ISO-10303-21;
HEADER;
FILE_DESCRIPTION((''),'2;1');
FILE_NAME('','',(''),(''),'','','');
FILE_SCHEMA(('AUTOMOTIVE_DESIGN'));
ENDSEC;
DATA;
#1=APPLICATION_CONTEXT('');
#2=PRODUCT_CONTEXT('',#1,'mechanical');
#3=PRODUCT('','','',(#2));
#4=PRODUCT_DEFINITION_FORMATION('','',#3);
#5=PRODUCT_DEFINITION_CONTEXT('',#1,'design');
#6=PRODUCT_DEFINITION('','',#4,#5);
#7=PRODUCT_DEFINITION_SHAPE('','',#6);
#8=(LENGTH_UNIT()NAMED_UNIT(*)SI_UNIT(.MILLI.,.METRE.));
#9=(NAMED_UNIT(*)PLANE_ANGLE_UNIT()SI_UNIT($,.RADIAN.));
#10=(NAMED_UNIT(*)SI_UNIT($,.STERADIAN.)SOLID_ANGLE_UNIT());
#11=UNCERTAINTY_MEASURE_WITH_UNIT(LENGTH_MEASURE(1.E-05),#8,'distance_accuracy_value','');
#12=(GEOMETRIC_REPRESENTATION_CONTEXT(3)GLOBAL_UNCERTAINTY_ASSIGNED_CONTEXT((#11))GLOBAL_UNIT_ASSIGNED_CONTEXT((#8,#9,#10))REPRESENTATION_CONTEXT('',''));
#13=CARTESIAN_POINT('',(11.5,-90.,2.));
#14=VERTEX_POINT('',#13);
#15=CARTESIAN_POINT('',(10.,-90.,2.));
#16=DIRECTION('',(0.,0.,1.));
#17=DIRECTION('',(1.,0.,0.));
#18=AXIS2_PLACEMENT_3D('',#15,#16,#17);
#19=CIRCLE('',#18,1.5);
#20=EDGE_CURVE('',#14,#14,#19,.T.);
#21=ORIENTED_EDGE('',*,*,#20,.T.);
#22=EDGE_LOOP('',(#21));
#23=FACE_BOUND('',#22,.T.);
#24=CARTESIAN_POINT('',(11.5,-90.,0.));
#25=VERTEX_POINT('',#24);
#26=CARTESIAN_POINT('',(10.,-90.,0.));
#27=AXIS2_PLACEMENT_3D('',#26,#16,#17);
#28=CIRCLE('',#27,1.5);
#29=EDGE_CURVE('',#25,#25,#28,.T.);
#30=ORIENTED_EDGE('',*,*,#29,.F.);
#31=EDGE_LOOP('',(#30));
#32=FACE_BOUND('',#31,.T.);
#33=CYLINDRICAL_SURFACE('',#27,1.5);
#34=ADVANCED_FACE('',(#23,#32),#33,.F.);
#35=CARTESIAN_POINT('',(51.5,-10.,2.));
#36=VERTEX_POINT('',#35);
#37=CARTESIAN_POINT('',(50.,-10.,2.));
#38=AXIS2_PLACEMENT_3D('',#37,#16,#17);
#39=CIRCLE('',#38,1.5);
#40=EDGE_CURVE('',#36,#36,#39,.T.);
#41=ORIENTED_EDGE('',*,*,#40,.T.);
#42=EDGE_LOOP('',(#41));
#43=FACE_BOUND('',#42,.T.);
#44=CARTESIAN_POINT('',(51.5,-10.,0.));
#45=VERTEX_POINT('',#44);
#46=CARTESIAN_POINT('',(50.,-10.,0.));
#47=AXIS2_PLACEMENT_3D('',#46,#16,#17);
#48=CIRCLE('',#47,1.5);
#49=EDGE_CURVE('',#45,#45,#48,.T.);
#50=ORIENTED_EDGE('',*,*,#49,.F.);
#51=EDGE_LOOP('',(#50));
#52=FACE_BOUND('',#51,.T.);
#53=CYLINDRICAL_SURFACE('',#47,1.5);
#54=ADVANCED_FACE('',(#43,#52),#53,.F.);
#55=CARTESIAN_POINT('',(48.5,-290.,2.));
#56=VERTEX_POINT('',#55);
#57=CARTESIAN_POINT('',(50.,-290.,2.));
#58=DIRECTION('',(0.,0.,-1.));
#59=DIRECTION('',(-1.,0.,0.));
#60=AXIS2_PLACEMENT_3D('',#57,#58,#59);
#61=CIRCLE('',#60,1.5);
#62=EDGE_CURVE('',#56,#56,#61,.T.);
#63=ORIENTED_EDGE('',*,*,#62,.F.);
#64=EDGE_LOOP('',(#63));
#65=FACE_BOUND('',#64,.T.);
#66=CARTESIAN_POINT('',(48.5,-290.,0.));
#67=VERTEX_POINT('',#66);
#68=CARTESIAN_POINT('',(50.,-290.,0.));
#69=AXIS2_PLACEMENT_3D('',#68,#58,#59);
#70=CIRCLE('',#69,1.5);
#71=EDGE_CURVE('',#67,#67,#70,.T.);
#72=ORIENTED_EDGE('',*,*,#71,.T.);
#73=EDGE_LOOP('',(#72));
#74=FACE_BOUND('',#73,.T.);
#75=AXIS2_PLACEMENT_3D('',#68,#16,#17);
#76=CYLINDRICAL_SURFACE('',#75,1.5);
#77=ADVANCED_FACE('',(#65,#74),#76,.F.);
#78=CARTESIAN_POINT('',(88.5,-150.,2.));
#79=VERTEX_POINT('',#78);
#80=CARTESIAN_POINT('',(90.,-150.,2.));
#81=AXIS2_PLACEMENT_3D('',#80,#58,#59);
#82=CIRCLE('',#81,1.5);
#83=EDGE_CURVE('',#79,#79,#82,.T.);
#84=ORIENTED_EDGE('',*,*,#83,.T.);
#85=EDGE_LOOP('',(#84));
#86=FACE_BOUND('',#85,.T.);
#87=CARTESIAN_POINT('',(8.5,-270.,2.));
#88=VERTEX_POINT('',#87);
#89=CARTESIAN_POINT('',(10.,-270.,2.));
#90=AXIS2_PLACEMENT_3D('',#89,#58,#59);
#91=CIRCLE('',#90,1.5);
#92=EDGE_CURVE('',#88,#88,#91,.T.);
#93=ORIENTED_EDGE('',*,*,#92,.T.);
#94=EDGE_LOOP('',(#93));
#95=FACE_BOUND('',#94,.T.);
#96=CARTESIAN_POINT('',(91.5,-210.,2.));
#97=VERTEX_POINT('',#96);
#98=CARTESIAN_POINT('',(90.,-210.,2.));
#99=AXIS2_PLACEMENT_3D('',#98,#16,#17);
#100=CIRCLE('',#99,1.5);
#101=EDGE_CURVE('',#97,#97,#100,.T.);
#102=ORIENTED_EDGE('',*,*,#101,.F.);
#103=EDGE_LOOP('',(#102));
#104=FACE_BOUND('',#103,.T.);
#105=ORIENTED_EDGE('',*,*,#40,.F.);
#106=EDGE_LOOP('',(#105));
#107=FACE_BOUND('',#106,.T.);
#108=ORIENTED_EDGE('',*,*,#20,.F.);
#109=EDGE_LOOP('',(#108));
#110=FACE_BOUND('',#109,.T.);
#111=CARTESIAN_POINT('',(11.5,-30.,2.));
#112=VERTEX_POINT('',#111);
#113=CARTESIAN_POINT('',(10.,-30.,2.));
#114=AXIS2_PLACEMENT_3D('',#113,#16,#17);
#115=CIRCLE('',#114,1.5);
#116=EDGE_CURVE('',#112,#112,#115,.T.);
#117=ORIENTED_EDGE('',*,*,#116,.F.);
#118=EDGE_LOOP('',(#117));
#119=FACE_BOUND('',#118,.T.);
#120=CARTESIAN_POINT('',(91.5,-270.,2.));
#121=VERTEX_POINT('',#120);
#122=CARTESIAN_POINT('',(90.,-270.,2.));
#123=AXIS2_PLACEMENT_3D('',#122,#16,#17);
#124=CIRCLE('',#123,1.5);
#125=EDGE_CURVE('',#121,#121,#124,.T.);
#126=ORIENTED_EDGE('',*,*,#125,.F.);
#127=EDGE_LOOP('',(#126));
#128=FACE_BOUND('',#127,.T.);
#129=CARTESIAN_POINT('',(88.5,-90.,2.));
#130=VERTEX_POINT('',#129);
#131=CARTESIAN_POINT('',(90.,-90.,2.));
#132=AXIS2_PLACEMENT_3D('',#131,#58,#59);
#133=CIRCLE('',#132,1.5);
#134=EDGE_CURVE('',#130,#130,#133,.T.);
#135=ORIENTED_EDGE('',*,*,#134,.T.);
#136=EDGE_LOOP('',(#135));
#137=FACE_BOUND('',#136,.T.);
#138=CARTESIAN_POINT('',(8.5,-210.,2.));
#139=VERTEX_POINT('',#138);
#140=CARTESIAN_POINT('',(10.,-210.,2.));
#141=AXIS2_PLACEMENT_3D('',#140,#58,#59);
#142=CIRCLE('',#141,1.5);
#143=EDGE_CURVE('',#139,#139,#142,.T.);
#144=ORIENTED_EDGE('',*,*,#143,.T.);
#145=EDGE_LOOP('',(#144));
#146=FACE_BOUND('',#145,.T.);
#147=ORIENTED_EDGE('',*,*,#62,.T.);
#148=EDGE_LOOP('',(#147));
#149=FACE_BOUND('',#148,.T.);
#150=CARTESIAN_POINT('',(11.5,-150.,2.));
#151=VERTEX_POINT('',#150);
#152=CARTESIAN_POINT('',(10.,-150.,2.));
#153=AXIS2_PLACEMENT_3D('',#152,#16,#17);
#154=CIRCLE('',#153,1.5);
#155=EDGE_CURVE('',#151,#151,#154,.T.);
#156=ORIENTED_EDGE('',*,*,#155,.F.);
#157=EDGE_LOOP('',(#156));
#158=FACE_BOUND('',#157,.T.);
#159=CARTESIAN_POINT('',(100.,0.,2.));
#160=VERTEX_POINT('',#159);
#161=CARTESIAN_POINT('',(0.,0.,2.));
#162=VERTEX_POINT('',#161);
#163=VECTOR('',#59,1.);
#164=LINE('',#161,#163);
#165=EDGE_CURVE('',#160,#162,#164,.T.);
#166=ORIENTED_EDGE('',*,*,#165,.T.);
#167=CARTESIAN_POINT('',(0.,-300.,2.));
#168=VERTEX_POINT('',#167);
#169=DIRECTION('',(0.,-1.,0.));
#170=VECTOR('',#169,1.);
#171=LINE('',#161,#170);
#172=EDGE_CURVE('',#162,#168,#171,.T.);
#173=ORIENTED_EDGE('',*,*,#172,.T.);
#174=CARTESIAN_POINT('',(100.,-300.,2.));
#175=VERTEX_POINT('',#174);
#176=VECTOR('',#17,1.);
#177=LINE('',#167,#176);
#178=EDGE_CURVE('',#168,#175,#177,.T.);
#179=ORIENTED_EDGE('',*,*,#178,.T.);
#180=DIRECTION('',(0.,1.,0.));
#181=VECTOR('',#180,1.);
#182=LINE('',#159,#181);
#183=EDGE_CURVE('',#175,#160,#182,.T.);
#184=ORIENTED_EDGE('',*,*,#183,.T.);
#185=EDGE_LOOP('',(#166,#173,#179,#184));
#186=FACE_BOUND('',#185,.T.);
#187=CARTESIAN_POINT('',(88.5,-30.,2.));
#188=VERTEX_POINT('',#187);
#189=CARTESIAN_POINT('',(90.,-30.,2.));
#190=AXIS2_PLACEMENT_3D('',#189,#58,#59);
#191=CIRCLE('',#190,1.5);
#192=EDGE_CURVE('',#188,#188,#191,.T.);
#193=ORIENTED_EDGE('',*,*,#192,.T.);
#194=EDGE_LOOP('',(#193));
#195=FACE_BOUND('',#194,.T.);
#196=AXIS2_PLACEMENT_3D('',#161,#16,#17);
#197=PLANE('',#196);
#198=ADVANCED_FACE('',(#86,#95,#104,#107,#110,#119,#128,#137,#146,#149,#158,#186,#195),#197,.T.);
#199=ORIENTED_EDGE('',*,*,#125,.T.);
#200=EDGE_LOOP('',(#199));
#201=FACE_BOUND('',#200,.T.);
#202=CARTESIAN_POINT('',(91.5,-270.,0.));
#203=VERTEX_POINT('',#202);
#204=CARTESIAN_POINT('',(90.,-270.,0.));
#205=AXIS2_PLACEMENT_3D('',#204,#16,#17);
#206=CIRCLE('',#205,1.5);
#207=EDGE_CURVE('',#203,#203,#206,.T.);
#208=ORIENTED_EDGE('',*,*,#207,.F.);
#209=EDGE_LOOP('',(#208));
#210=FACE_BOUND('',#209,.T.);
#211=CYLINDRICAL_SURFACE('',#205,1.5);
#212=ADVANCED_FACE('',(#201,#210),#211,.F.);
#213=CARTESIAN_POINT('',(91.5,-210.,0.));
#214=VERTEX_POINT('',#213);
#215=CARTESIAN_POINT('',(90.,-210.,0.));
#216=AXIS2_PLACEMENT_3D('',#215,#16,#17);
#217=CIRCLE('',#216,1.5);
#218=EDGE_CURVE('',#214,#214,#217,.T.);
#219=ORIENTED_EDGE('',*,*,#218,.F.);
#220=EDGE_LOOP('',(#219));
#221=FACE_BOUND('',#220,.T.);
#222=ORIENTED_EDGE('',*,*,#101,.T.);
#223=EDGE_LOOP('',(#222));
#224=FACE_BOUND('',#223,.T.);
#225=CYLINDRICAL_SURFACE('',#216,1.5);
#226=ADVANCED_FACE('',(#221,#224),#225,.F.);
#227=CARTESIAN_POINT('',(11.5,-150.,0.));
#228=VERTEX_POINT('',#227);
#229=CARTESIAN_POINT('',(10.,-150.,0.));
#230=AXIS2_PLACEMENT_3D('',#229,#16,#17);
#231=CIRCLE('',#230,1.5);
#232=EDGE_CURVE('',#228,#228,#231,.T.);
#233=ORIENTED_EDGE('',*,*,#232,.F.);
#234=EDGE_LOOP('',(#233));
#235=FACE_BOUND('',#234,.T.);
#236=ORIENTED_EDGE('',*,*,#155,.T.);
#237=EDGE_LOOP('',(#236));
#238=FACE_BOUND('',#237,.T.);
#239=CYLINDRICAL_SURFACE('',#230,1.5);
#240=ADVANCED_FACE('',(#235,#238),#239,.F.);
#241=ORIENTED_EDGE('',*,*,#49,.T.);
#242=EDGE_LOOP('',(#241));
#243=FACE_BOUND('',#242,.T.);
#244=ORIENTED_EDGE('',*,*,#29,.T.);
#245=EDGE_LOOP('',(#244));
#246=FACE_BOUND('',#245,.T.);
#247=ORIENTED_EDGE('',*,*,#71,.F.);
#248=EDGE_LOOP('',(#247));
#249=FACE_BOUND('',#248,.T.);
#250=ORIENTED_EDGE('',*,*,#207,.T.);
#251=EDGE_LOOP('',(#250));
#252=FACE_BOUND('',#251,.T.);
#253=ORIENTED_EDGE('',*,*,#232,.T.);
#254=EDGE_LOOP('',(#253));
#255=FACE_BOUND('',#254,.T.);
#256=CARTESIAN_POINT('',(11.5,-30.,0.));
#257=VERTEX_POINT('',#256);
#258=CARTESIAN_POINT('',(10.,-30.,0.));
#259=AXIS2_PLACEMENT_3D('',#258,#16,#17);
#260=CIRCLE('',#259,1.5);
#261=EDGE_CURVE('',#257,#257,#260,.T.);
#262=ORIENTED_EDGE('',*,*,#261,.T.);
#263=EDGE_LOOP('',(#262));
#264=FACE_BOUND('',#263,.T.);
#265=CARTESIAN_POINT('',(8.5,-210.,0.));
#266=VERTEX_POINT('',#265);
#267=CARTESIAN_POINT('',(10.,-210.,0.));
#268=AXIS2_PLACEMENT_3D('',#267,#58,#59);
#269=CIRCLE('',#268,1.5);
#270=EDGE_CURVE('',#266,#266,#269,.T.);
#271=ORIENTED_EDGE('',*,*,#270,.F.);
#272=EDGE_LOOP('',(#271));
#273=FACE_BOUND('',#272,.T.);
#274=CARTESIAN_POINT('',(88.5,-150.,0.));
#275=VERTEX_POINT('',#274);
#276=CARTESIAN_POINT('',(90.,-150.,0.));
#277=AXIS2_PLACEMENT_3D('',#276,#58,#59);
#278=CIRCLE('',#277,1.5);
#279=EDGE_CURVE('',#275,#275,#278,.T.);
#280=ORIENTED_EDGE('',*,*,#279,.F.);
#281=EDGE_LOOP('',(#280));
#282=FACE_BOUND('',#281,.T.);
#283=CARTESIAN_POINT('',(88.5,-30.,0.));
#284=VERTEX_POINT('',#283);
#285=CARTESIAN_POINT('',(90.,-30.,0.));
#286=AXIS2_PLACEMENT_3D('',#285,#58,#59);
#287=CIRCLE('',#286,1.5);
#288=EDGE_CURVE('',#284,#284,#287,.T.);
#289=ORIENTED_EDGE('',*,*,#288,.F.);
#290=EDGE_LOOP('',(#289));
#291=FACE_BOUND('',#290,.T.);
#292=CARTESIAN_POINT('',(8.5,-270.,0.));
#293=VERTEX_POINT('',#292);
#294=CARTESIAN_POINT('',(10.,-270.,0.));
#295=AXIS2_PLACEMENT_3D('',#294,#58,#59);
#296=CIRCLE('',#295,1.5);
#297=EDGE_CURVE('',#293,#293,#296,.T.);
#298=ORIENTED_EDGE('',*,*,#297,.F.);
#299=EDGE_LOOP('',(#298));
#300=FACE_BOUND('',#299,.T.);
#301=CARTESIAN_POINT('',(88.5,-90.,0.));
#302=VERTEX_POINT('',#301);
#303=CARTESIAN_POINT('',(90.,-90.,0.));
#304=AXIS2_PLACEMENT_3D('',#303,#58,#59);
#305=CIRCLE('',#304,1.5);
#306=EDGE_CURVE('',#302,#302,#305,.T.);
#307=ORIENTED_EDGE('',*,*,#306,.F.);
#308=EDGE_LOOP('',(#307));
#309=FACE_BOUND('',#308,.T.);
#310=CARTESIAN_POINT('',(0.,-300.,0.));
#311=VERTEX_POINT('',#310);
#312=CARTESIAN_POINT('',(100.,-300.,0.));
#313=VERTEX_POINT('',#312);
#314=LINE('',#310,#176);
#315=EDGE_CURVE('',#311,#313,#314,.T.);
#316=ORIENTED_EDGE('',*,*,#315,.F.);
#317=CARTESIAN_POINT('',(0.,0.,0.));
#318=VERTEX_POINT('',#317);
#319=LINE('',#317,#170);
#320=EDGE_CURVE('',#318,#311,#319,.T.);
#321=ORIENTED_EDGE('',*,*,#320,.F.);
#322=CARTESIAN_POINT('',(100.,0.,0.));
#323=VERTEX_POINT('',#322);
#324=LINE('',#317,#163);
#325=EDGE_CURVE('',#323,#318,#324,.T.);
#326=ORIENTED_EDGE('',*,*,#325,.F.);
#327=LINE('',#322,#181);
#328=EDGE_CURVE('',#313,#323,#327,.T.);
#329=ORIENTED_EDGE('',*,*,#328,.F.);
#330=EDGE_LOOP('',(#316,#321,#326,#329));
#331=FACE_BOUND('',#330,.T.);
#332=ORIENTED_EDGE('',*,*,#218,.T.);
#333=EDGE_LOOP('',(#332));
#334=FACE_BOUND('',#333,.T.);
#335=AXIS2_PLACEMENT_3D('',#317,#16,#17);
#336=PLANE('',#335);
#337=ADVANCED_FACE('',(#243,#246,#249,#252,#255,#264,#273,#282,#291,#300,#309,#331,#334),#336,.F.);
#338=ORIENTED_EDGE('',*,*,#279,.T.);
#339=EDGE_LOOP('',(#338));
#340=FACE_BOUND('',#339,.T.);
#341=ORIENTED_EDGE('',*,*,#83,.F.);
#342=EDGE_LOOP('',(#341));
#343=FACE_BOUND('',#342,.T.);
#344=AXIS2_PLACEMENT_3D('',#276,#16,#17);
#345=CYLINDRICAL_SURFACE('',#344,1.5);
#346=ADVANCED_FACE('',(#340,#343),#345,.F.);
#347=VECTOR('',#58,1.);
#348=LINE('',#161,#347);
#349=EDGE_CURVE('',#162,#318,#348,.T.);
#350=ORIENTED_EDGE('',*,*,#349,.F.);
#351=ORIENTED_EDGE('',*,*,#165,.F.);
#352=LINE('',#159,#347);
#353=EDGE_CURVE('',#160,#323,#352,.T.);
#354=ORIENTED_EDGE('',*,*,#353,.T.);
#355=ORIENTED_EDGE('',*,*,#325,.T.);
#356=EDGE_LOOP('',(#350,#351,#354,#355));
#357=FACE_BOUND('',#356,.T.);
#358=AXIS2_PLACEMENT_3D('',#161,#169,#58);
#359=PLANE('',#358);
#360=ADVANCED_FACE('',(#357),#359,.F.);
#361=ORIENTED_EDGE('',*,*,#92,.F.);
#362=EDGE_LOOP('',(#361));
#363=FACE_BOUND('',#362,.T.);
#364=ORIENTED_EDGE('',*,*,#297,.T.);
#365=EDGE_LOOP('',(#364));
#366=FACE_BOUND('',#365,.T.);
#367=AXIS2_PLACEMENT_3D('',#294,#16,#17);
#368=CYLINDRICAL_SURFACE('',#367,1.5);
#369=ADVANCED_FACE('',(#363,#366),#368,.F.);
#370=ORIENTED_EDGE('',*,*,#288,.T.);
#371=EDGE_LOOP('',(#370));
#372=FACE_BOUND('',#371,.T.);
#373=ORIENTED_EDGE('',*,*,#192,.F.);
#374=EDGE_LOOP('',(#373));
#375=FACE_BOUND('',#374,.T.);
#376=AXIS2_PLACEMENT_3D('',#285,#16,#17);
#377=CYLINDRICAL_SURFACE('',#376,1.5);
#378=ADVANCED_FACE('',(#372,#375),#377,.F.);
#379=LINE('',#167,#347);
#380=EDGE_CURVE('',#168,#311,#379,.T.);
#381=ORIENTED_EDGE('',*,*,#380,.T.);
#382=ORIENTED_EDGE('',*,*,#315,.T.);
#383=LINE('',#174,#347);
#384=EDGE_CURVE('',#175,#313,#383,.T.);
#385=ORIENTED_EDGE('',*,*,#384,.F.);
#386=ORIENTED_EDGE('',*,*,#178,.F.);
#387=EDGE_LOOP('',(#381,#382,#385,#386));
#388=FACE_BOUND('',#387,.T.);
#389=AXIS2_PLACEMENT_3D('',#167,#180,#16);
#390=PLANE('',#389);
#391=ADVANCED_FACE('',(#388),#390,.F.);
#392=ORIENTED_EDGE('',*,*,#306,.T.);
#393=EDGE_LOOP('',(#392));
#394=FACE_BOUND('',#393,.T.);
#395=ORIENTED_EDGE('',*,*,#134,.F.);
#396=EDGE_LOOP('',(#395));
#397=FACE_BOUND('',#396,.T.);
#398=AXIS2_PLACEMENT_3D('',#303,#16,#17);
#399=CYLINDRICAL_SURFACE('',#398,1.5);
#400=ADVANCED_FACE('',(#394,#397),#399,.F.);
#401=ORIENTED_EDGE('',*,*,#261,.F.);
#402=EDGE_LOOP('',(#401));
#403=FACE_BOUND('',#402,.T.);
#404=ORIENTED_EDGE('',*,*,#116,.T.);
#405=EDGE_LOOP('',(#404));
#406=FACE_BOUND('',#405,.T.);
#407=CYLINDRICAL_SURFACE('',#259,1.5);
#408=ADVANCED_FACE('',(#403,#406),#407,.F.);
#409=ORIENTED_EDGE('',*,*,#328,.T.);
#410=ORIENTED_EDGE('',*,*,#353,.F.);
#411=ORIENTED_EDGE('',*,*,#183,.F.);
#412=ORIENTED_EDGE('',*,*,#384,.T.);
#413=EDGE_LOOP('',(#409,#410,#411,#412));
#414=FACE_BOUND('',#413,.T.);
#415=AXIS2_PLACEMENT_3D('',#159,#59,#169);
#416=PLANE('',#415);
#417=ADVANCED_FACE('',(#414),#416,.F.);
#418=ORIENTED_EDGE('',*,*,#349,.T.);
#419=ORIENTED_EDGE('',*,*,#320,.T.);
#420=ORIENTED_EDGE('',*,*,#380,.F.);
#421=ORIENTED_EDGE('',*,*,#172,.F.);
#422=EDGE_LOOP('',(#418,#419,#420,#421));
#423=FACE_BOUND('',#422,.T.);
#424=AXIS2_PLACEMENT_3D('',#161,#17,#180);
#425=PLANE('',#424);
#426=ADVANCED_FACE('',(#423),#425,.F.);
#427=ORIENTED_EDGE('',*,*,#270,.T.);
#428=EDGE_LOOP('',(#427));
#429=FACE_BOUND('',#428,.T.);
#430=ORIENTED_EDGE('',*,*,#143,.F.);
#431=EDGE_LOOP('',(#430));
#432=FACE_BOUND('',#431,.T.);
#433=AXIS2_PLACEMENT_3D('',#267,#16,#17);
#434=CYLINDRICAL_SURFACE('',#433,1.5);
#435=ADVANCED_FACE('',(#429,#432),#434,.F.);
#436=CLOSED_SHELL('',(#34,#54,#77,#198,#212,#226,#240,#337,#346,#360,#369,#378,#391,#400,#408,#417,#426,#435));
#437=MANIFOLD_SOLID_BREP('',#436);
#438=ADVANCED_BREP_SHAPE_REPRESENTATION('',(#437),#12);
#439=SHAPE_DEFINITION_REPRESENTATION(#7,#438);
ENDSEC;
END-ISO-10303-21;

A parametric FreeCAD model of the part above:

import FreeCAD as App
import Part
import Sketcher
Q = App.Units.Quantity


def add_polygon(sketch, points):
    """Adds a closed chain of lines whose ends are joined by coincident constraints."""
    first, n = sketch.GeometryCount, len(points)
    for a, b in zip(points, points[1:] + points[:1]):
        sketch.addGeometry(Part.LineSegment(App.Vector(*a, 0), App.Vector(*b, 0)), False)
    for i in range(n):
        sketch.addConstraint(Sketcher.Constraint("Coincident", first + i, 2, first + (i + 1) % n, 1))

doc = App.newDocument("Part")
body = doc.addObject("PartDesign::Body", "Body")

# Sketch on XY plane
sketch1 = body.newObject("Sketcher::SketchObject", "Sketch")
sketch1.AttachmentSupport = (doc.getObject("XY_Plane"), [""])
sketch1.MapMode = "FlatFace"
add_polygon(sketch1, [(0, 0), (0, -300), (100, -300), (100, 0)])  # lines 0-3
sketch1.addConstraint([
    Sketcher.Constraint("Vertical", 0),
    Sketcher.Constraint("Horizontal", 1),
    Sketcher.Constraint("Vertical", 2),
    Sketcher.Constraint("Horizontal", 3),
    Sketcher.Constraint("Coincident", 3, 2, -1, 1),
    Sketcher.Constraint("DistanceX", 1, 1, 1, 2, Q("100 mm")),
    Sketcher.Constraint("DistanceY", 0, 2, 0, 1, Q("300 mm")),
])
pad1 = body.newObject("PartDesign::Pad", "Pad")
pad1.Profile = sketch1
pad1.Length = 2

# Sketch on XY plane
sketch2 = body.newObject("Sketcher::SketchObject", "Sketch001")
sketch2.AttachmentSupport = (doc.getObject("XY_Plane"), [""])
sketch2.MapMode = "FlatFace"
sketch2.AttachmentOffset = App.Placement(App.Vector(0, 0, 2), App.Rotation())
sketch2.addGeometry([
    Part.Circle(App.Vector(10, -30, 0), App.Vector(0, 0, 1), 1.5),  # 0
    Part.Circle(App.Vector(10, -90, 0), App.Vector(0, 0, 1), 1.5),  # 1
    Part.Circle(App.Vector(10, -150, 0), App.Vector(0, 0, 1), 1.5),  # 2
    Part.Circle(App.Vector(10, -210, 0), App.Vector(0, 0, 1), 1.5),  # 3
    Part.Circle(App.Vector(10, -270, 0), App.Vector(0, 0, 1), 1.5),  # 4
    Part.Circle(App.Vector(90, -150, 0), App.Vector(0, 0, 1), 1.5),  # 5
    Part.Circle(App.Vector(90, -90, 0), App.Vector(0, 0, 1), 1.5),  # 6
    Part.Circle(App.Vector(90, -30, 0), App.Vector(0, 0, 1), 1.5),  # 7
    Part.Circle(App.Vector(90, -270, 0), App.Vector(0, 0, 1), 1.5),  # 8
    Part.Circle(App.Vector(90, -210, 0), App.Vector(0, 0, 1), 1.5),  # 9
    Part.Circle(App.Vector(50, -10, 0), App.Vector(0, 0, 1), 1.5),  # 10
    Part.Circle(App.Vector(50, -290, 0), App.Vector(0, 0, 1), 1.5),  # 11
], False)
sketch2.addConstraint([
    Sketcher.Constraint("Equal", 0, 1),
    Sketcher.Constraint("Equal", 1, 2),
    Sketcher.Constraint("Equal", 2, 3),
    Sketcher.Constraint("Equal", 3, 4),
    Sketcher.Constraint("Equal", 4, 5),
    Sketcher.Constraint("Equal", 5, 6),
    Sketcher.Constraint("Equal", 6, 7),
    Sketcher.Constraint("Equal", 7, 8),
    Sketcher.Constraint("Equal", 8, 9),
    Sketcher.Constraint("Equal", 9, 10),
    Sketcher.Constraint("Equal", 10, 11),
    Sketcher.Constraint("Horizontal", 2, 3, 5, 3),
    Sketcher.Constraint("Horizontal", 1, 3, 6, 3),
    Sketcher.Constraint("Horizontal", 0, 3, 7, 3),
    Sketcher.Constraint("Horizontal", 4, 3, 8, 3),
    Sketcher.Constraint("Horizontal", 3, 3, 9, 3),
    Sketcher.Constraint("Vertical", 0, 3, 1, 3),
    Sketcher.Constraint("Vertical", 1, 3, 2, 3),
    Sketcher.Constraint("Vertical", 2, 3, 3, 3),
    Sketcher.Constraint("Vertical", 3, 3, 4, 3),
    Sketcher.Constraint("Vertical", 5, 3, 6, 3),
    Sketcher.Constraint("Vertical", 6, 3, 7, 3),
    Sketcher.Constraint("Vertical", 7, 3, 8, 3),
    Sketcher.Constraint("Vertical", 8, 3, 9, 3),
    Sketcher.Constraint("Vertical", 10, 3, 11, 3),
    Sketcher.Constraint("Diameter", 0, Q("3 mm")),
    Sketcher.Constraint("DistanceX", -1, 1, 0, 3, Q("10 mm")),
    Sketcher.Constraint("DistanceY", 0, 3, -1, 1, Q("30 mm")),
    Sketcher.Constraint("DistanceY", 1, 3, -1, 1, Q("90 mm")),
    Sketcher.Constraint("DistanceY", 2, 3, -1, 1, Q("150 mm")),
    Sketcher.Constraint("DistanceY", 3, 3, -1, 1, Q("210 mm")),
    Sketcher.Constraint("DistanceY", 4, 3, -1, 1, Q("270 mm")),
    Sketcher.Constraint("DistanceX", -1, 1, 5, 3, Q("90 mm")),
    Sketcher.Constraint("DistanceX", -1, 1, 10, 3, Q("50 mm")),
    Sketcher.Constraint("DistanceY", 10, 3, -1, 1, Q("10 mm")),
    Sketcher.Constraint("DistanceY", 11, 3, -1, 1, Q("290 mm")),
])
pocket1 = body.newObject("PartDesign::Pocket", "Pocket")
pocket1.Profile = sketch2
pocket1.Type = "ThroughAll"

doc.recompute()
